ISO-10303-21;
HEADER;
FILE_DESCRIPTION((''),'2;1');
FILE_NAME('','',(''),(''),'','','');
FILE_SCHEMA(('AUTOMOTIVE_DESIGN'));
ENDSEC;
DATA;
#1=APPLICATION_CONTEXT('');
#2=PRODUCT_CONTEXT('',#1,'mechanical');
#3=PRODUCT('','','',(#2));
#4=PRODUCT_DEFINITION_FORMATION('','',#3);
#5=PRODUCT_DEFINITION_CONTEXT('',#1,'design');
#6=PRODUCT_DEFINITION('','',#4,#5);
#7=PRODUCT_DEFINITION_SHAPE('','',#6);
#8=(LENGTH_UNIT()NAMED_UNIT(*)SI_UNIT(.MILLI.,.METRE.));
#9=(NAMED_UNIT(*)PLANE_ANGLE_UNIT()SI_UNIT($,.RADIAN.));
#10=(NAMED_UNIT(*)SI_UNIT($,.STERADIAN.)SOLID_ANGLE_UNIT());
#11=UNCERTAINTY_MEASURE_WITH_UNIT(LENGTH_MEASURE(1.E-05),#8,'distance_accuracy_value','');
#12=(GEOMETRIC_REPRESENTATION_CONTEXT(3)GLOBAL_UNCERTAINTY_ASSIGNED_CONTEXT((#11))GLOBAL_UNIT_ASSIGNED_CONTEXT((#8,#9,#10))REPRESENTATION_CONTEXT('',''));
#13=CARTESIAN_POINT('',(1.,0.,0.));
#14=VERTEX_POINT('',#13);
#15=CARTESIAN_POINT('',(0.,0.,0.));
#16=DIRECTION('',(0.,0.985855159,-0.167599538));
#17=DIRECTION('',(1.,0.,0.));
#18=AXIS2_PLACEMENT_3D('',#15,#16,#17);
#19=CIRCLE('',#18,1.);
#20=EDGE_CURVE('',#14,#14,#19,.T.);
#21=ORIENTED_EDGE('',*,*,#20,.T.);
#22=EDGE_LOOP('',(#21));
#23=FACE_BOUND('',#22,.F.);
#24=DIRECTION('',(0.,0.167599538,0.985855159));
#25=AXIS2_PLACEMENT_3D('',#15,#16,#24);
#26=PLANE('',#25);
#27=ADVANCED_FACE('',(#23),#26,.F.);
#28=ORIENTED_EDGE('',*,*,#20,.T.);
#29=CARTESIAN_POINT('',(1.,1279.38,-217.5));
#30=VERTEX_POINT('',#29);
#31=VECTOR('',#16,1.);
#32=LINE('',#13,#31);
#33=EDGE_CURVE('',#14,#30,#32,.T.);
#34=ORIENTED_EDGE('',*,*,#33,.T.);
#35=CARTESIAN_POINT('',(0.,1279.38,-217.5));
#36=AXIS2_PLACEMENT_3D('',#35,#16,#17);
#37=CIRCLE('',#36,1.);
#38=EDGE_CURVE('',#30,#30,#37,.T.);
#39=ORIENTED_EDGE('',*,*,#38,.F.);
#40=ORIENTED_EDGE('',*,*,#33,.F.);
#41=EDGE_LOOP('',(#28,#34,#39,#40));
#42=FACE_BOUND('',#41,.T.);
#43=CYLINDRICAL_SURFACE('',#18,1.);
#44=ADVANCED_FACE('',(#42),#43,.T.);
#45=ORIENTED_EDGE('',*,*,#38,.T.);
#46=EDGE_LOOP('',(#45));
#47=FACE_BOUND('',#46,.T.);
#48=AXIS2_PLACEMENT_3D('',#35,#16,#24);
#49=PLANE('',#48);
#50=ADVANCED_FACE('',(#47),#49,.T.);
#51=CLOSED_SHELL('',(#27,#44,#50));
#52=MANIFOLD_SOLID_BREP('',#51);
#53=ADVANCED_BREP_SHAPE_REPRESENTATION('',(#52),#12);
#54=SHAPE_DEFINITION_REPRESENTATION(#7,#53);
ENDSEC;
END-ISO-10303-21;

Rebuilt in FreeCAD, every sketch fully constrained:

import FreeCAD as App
import Part
import Sketcher
from FreeCAD import Vector
Q = App.Units.Quantity

doc = App.newDocument("Part")
body = doc.addObject("PartDesign::Body", "Body")

# Sketch on an angled plane
sketch1 = doc.addObject("Sketcher::SketchObject", "Sketch")
body.addObject(sketch1)
sketch1.Placement = App.Placement(Vector(0, 1279.38, -217.5), App.Rotation(Vector(1, 0, 0), Vector(0, -0.167599538, -0.985855159), Vector(0, 0.985855159, -0.167599538), "ZXY"))
sketch1.addGeometry(Part.Circle(Vector(0, 0, 0), Vector(0, 0, 1), 1), False)
sketch1.addConstraint(Sketcher.Constraint("Coincident", 0, 3, -1, 1))
sketch1.addConstraint(Sketcher.Constraint("Diameter", 0, Q("2 mm")))

# Sketch on an angled plane
sketch2 = doc.addObject("Sketcher::SketchObject", "Sketch001")
body.addObject(sketch2)
sketch2.Placement = App.Placement(Vector(0, 0, 0), App.Rotation(Vector(0, 0.985855159, -0.167599538), Vector(1, 0, 0), Vector(0, -0.167599538, -0.985855159), "ZXY"))
sketch2.addGeometry(Part.LineSegment(Vector(0, 0, 0), Vector(1298, 0, 0)), False)
sketch2.addConstraint(Sketcher.Constraint("Horizontal", 0))
sketch2.addConstraint(Sketcher.Constraint("Coincident", 0, 1, -1, 1))
sketch2.addConstraint(Sketcher.Constraint("DistanceX", 0, 1, 0, 2, Q("1297.736273 mm")))
doc.recompute()

additivepipe = doc.addObject("PartDesign::AdditivePipe", "AdditivePipe")
body.addObject(additivepipe)
additivepipe.Profile = sketch1
additivepipe.Spine = (sketch2, ["Edge1"])

doc.recompute()
